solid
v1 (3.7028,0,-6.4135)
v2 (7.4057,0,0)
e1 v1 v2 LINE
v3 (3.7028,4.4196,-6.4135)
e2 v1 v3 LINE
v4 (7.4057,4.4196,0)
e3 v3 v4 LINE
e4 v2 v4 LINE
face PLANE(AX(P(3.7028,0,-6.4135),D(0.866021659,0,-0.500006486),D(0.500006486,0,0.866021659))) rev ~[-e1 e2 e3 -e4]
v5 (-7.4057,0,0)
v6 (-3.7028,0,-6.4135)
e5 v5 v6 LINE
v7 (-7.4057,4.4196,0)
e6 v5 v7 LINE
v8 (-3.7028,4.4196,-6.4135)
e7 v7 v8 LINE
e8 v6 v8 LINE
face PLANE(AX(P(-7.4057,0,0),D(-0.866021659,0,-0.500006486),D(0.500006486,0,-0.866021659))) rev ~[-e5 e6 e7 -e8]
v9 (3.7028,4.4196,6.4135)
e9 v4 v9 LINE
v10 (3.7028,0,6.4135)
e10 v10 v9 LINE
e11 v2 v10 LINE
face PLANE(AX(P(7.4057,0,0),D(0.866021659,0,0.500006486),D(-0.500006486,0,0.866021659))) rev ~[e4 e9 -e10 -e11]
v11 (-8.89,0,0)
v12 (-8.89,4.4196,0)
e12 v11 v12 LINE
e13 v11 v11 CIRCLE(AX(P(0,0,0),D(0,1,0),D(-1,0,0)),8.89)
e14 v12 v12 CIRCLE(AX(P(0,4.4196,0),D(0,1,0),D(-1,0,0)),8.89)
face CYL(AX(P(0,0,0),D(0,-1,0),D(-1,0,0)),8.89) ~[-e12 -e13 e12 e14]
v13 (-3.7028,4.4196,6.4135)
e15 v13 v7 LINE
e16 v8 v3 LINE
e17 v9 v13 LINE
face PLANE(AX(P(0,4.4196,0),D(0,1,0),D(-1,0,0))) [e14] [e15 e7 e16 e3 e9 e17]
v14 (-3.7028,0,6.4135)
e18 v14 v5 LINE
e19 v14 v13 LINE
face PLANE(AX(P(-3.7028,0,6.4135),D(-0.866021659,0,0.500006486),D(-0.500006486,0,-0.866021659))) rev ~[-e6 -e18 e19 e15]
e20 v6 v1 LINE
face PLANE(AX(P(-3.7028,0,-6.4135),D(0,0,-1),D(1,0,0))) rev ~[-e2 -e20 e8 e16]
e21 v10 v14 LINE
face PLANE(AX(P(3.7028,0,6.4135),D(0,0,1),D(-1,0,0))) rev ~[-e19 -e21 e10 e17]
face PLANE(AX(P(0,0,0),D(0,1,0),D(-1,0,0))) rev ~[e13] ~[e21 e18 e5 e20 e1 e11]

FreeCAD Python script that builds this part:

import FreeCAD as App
import Part
import Sketcher
from FreeCAD import Vector
Q = App.Units.Quantity


def add_polygon(sketch, points):
    """Adds a closed chain of lines whose ends are joined by coincident constraints."""
    first, n = sketch.GeometryCount, len(points)
    for a, b in zip(points, points[1:] + points[:1]):
        sketch.addGeometry(Part.LineSegment(App.Vector(*a, 0), App.Vector(*b, 0)), False)
    for i in range(n):
        sketch.addConstraint(Sketcher.Constraint("Coincident", first + i, 2, first + (i + 1) % n, 1))

doc = App.newDocument("Part")
body = doc.addObject("PartDesign::Body", "Body")

# Sketch on XZ plane
sketch1 = doc.addObject("Sketcher::SketchObject", "Sketch")
body.addObject(sketch1)
sketch1.AttachmentSupport = (doc.XZ_Plane, [""])
sketch1.MapMode = "FlatFace"
sketch1.addGeometry(Part.Circle(Vector(0, 0, 0), Vector(0, 0, 1), 9), False)  # 0
add_polygon(sketch1, [(-4, 6), (-7, 0), (-4, -6), (4, -6), (7, 0), (4, 6)])  # lines 1-6
sketch1.addConstraint([
    Sketcher.Constraint("Horizontal", 3),
    Sketcher.Constraint("Horizontal", 6),
    Sketcher.Constraint("Coincident", 0, 3, -1, 1),
    Sketcher.Constraint("Symmetric", 1, 2, 4, 2, -1, 1),
    Sketcher.Constraint("Symmetric", 2, 2, 5, 2, -1, 1),
    Sketcher.Constraint("PointOnObject", 1, 2, -1),
    Sketcher.Constraint("Parallel", 1, 4),
    Sketcher.Constraint("Vertical", 3, 2, 5, 2),
    Sketcher.Constraint("Diameter", 0, Q("0.7 in")),
    Sketcher.Constraint("Angle", 1, Q("-120.0004 deg")),
    Sketcher.Constraint("DistanceY", 3, 2, 5, 2, Q("0.505 in")),
    Sketcher.Constraint("DistanceX", 3, 1, 3, 2, Q("7.4056 mm")),
])
pad1 = doc.addObject("PartDesign::Pad", "Pad")
body.addObject(pad1)
pad1.Profile = sketch1
pad1.Length = Q("0.174 in")
pad1.Reversed = True

doc.recompute()
